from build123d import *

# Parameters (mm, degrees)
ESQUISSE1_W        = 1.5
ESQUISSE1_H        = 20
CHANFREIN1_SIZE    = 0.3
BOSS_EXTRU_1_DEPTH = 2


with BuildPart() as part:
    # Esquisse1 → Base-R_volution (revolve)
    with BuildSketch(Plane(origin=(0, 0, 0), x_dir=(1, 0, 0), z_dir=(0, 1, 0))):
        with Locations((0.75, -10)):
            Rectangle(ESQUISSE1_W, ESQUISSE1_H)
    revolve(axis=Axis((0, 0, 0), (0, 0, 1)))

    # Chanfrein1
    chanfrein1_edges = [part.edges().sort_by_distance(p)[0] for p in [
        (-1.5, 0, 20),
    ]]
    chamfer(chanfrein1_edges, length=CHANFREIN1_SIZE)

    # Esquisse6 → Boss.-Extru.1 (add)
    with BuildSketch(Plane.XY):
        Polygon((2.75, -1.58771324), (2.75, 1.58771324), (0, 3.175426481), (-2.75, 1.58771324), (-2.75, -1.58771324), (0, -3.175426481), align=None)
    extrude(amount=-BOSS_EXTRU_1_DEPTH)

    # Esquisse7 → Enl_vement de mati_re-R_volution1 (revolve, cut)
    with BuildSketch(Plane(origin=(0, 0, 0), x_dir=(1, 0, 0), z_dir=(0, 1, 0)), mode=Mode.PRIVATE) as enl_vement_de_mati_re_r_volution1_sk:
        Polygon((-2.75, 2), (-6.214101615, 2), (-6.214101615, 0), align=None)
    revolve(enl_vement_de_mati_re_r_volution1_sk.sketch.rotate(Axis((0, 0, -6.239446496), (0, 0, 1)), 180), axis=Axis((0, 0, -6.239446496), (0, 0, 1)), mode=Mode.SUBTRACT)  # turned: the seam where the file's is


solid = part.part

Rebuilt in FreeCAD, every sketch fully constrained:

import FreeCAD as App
import Part
import Sketcher

V = App.Vector
Q = App.Units.Quantity


def edges_at(feature, points):
    """Names of the edges that pass closest to the given points."""
    edges = feature.Shape.Edges
    near = lambda p: min(range(len(edges)), key=lambda i: edges[i].distToShape(Part.Vertex(*p))[0])
    return sorted({f"Edge{near(p) + 1}" for p in points})

doc = App.newDocument("Part")
body = doc.addObject("PartDesign::Body", "Body")

sketch1 = doc.addObject("Sketcher::SketchObject", "Sketch")
body.addObject(sketch1)
sketch1.AttachmentSupport = (doc.XZ_Plane, [""])
sketch1.MapMode = "FlatFace"
sketch1.addGeometry(Part.LineSegment(V(0, 0, 0), V(0, 20, 0)), False)
sketch1.addGeometry(Part.LineSegment(V(0, 20, 0), V(1.5, 20, 0)), False)
sketch1.addGeometry(Part.LineSegment(V(1.5, 20, 0), V(1.5, 0, 0)), False)
sketch1.addGeometry(Part.LineSegment(V(1.5, 0, 0), V(0, 0, 0)), False)
sketch1.addConstraint(Sketcher.Constraint("Coincident", 0, 2, 1, 1))
sketch1.addConstraint(Sketcher.Constraint("Coincident", 1, 2, 2, 1))
sketch1.addConstraint(Sketcher.Constraint("Coincident", 2, 2, 3, 1))
sketch1.addConstraint(Sketcher.Constraint("Coincident", 3, 2, 0, 1))
sketch1.addConstraint(Sketcher.Constraint("Vertical", 0))
sketch1.addConstraint(Sketcher.Constraint("Horizontal", 1))
sketch1.addConstraint(Sketcher.Constraint("Vertical", 2))
sketch1.addConstraint(Sketcher.Constraint("Horizontal", 3))
sketch1.addConstraint(Sketcher.Constraint("Coincident", 3, 2, -1, 1))
sketch1.addConstraint(Sketcher.Constraint("DistanceY", 0, 1, 0, 2, 20.0))
sketch1.addConstraint(Sketcher.Constraint("DistanceX", 1, 1, 1, 2, 1.5))
revolution = doc.addObject("PartDesign::Revolution", "Revolution")
body.addObject(revolution)
revolution.Profile = sketch1
revolution.ReferenceAxis = (sketch1, ["V_Axis"])
revolution.Angle = 360
doc.recompute()

chamfer = doc.addObject("PartDesign::Chamfer", "Chamfer")
body.addObject(chamfer)
chamfer.Base = (revolution, edges_at(revolution, [(-1.5, 0, 20)]))
chamfer.Size = 0.3

sketch2 = doc.addObject("Sketcher::SketchObject", "Sketch001")
body.addObject(sketch2)
sketch2.AttachmentSupport = (doc.XY_Plane, [""])
sketch2.MapMode = "FlatFace"
sketch2.addGeometry(Part.LineSegment(V(2.8, -1.6, 0), V(2.8, 1.6, 0)), False)
sketch2.addGeometry(Part.LineSegment(V(2.8, 1.6, 0), V(0, 3.2, 0)), False)
sketch2.addGeometry(Part.LineSegment(V(0, 3.2, 0), V(-2.8, 1.6, 0)), False)
sketch2.addGeometry(Part.LineSegment(V(-2.8, 1.6, 0), V(-2.8, -1.6, 0)), False)
sketch2.addGeometry(Part.LineSegment(V(-2.8, -1.6, 0), V(0, -3.2, 0)), False)
sketch2.addGeometry(Part.LineSegment(V(0, -3.2, 0), V(2.8, -1.6, 0)), False)
sketch2.addConstraint(Sketcher.Constraint("Coincident", 0, 2, 1, 1))
sketch2.addConstraint(Sketcher.Constraint("Coincident", 1, 2, 2, 1))
sketch2.addConstraint(Sketcher.Constraint("Coincident", 2, 2, 3, 1))
sketch2.addConstraint(Sketcher.Constraint("Coincident", 3, 2, 4, 1))
sketch2.addConstraint(Sketcher.Constraint("Coincident", 4, 2, 5, 1))
sketch2.addConstraint(Sketcher.Constraint("Coincident", 5, 2, 0, 1))
sketch2.addConstraint(Sketcher.Constraint("Vertical", 0))
sketch2.addConstraint(Sketcher.Constraint("Vertical", 3))
sketch2.addConstraint(Sketcher.Constraint("Symmetric", 0, 2, 3, 2, -1, 1))
sketch2.addConstraint(Sketcher.Constraint("Symmetric", 1, 2, 4, 2, -1, 1))
sketch2.addConstraint(Sketcher.Constraint("PointOnObject", 1, 2, -2))
sketch2.addConstraint(Sketcher.Constraint("Parallel", 2, 5))
sketch2.addConstraint(Sketcher.Constraint("Horizontal", 0, 2, 2, 2))
sketch2.addConstraint(Sketcher.Constraint("Angle", 1, Q("150 deg")))
sketch2.addConstraint(Sketcher.Constraint("DistanceX", 2, 2, 0, 2, 5.5))
sketch2.addConstraint(Sketcher.Constraint("DistanceY", 0, 1, 0, 2, 3.175426))
pad1 = doc.addObject("PartDesign::Pad", "Pad")
body.addObject(pad1)
pad1.Profile = sketch2
pad1.Length = 2
pad1.Reversed = True

sketch3 = doc.addObject("Sketcher::SketchObject", "Sketch002")
body.addObject(sketch3)
sketch3.AttachmentSupport = (doc.XZ_Plane, [""])
sketch3.MapMode = "FlatFace"
sketch3.addGeometry(Part.LineSegment(V(-2.8, -2, 0), V(-6.2, -2, 0)), False)
sketch3.addGeometry(Part.LineSegment(V(-6.2, -2, 0), V(-6.2, 0, 0)), False)
sketch3.addGeometry(Part.LineSegment(V(-6.2, 0, 0), V(-2.8, -2, 0)), False)
sketch3.addConstraint(Sketcher.Constraint("Coincident", 0, 2, 1, 1))
sketch3.addConstraint(Sketcher.Constraint("Coincident", 1, 2, 2, 1))
sketch3.addConstraint(Sketcher.Constraint("Coincident", 2, 2, 0, 1))
sketch3.addConstraint(Sketcher.Constraint("Horizontal", 0))
sketch3.addConstraint(Sketcher.Constraint("Vertical", 1))
sketch3.addConstraint(Sketcher.Constraint("PointOnObject", 1, 2, -1))
sketch3.addConstraint(Sketcher.Constraint("DistanceY", 1, 1, 1, 2, 2.0))
sketch3.addConstraint(Sketcher.Constraint("Angle", 2, Q("-30 deg")))
sketch3.addConstraint(Sketcher.Constraint("DistanceX", 2, 2, -1, 1, 2.75))
groove = doc.addObject("PartDesign::Groove", "Groove")
body.addObject(groove)
groove.Profile = sketch3
groove.ReferenceAxis = (sketch3, ["V_Axis"])
groove.Angle = 360

doc.recompute()
